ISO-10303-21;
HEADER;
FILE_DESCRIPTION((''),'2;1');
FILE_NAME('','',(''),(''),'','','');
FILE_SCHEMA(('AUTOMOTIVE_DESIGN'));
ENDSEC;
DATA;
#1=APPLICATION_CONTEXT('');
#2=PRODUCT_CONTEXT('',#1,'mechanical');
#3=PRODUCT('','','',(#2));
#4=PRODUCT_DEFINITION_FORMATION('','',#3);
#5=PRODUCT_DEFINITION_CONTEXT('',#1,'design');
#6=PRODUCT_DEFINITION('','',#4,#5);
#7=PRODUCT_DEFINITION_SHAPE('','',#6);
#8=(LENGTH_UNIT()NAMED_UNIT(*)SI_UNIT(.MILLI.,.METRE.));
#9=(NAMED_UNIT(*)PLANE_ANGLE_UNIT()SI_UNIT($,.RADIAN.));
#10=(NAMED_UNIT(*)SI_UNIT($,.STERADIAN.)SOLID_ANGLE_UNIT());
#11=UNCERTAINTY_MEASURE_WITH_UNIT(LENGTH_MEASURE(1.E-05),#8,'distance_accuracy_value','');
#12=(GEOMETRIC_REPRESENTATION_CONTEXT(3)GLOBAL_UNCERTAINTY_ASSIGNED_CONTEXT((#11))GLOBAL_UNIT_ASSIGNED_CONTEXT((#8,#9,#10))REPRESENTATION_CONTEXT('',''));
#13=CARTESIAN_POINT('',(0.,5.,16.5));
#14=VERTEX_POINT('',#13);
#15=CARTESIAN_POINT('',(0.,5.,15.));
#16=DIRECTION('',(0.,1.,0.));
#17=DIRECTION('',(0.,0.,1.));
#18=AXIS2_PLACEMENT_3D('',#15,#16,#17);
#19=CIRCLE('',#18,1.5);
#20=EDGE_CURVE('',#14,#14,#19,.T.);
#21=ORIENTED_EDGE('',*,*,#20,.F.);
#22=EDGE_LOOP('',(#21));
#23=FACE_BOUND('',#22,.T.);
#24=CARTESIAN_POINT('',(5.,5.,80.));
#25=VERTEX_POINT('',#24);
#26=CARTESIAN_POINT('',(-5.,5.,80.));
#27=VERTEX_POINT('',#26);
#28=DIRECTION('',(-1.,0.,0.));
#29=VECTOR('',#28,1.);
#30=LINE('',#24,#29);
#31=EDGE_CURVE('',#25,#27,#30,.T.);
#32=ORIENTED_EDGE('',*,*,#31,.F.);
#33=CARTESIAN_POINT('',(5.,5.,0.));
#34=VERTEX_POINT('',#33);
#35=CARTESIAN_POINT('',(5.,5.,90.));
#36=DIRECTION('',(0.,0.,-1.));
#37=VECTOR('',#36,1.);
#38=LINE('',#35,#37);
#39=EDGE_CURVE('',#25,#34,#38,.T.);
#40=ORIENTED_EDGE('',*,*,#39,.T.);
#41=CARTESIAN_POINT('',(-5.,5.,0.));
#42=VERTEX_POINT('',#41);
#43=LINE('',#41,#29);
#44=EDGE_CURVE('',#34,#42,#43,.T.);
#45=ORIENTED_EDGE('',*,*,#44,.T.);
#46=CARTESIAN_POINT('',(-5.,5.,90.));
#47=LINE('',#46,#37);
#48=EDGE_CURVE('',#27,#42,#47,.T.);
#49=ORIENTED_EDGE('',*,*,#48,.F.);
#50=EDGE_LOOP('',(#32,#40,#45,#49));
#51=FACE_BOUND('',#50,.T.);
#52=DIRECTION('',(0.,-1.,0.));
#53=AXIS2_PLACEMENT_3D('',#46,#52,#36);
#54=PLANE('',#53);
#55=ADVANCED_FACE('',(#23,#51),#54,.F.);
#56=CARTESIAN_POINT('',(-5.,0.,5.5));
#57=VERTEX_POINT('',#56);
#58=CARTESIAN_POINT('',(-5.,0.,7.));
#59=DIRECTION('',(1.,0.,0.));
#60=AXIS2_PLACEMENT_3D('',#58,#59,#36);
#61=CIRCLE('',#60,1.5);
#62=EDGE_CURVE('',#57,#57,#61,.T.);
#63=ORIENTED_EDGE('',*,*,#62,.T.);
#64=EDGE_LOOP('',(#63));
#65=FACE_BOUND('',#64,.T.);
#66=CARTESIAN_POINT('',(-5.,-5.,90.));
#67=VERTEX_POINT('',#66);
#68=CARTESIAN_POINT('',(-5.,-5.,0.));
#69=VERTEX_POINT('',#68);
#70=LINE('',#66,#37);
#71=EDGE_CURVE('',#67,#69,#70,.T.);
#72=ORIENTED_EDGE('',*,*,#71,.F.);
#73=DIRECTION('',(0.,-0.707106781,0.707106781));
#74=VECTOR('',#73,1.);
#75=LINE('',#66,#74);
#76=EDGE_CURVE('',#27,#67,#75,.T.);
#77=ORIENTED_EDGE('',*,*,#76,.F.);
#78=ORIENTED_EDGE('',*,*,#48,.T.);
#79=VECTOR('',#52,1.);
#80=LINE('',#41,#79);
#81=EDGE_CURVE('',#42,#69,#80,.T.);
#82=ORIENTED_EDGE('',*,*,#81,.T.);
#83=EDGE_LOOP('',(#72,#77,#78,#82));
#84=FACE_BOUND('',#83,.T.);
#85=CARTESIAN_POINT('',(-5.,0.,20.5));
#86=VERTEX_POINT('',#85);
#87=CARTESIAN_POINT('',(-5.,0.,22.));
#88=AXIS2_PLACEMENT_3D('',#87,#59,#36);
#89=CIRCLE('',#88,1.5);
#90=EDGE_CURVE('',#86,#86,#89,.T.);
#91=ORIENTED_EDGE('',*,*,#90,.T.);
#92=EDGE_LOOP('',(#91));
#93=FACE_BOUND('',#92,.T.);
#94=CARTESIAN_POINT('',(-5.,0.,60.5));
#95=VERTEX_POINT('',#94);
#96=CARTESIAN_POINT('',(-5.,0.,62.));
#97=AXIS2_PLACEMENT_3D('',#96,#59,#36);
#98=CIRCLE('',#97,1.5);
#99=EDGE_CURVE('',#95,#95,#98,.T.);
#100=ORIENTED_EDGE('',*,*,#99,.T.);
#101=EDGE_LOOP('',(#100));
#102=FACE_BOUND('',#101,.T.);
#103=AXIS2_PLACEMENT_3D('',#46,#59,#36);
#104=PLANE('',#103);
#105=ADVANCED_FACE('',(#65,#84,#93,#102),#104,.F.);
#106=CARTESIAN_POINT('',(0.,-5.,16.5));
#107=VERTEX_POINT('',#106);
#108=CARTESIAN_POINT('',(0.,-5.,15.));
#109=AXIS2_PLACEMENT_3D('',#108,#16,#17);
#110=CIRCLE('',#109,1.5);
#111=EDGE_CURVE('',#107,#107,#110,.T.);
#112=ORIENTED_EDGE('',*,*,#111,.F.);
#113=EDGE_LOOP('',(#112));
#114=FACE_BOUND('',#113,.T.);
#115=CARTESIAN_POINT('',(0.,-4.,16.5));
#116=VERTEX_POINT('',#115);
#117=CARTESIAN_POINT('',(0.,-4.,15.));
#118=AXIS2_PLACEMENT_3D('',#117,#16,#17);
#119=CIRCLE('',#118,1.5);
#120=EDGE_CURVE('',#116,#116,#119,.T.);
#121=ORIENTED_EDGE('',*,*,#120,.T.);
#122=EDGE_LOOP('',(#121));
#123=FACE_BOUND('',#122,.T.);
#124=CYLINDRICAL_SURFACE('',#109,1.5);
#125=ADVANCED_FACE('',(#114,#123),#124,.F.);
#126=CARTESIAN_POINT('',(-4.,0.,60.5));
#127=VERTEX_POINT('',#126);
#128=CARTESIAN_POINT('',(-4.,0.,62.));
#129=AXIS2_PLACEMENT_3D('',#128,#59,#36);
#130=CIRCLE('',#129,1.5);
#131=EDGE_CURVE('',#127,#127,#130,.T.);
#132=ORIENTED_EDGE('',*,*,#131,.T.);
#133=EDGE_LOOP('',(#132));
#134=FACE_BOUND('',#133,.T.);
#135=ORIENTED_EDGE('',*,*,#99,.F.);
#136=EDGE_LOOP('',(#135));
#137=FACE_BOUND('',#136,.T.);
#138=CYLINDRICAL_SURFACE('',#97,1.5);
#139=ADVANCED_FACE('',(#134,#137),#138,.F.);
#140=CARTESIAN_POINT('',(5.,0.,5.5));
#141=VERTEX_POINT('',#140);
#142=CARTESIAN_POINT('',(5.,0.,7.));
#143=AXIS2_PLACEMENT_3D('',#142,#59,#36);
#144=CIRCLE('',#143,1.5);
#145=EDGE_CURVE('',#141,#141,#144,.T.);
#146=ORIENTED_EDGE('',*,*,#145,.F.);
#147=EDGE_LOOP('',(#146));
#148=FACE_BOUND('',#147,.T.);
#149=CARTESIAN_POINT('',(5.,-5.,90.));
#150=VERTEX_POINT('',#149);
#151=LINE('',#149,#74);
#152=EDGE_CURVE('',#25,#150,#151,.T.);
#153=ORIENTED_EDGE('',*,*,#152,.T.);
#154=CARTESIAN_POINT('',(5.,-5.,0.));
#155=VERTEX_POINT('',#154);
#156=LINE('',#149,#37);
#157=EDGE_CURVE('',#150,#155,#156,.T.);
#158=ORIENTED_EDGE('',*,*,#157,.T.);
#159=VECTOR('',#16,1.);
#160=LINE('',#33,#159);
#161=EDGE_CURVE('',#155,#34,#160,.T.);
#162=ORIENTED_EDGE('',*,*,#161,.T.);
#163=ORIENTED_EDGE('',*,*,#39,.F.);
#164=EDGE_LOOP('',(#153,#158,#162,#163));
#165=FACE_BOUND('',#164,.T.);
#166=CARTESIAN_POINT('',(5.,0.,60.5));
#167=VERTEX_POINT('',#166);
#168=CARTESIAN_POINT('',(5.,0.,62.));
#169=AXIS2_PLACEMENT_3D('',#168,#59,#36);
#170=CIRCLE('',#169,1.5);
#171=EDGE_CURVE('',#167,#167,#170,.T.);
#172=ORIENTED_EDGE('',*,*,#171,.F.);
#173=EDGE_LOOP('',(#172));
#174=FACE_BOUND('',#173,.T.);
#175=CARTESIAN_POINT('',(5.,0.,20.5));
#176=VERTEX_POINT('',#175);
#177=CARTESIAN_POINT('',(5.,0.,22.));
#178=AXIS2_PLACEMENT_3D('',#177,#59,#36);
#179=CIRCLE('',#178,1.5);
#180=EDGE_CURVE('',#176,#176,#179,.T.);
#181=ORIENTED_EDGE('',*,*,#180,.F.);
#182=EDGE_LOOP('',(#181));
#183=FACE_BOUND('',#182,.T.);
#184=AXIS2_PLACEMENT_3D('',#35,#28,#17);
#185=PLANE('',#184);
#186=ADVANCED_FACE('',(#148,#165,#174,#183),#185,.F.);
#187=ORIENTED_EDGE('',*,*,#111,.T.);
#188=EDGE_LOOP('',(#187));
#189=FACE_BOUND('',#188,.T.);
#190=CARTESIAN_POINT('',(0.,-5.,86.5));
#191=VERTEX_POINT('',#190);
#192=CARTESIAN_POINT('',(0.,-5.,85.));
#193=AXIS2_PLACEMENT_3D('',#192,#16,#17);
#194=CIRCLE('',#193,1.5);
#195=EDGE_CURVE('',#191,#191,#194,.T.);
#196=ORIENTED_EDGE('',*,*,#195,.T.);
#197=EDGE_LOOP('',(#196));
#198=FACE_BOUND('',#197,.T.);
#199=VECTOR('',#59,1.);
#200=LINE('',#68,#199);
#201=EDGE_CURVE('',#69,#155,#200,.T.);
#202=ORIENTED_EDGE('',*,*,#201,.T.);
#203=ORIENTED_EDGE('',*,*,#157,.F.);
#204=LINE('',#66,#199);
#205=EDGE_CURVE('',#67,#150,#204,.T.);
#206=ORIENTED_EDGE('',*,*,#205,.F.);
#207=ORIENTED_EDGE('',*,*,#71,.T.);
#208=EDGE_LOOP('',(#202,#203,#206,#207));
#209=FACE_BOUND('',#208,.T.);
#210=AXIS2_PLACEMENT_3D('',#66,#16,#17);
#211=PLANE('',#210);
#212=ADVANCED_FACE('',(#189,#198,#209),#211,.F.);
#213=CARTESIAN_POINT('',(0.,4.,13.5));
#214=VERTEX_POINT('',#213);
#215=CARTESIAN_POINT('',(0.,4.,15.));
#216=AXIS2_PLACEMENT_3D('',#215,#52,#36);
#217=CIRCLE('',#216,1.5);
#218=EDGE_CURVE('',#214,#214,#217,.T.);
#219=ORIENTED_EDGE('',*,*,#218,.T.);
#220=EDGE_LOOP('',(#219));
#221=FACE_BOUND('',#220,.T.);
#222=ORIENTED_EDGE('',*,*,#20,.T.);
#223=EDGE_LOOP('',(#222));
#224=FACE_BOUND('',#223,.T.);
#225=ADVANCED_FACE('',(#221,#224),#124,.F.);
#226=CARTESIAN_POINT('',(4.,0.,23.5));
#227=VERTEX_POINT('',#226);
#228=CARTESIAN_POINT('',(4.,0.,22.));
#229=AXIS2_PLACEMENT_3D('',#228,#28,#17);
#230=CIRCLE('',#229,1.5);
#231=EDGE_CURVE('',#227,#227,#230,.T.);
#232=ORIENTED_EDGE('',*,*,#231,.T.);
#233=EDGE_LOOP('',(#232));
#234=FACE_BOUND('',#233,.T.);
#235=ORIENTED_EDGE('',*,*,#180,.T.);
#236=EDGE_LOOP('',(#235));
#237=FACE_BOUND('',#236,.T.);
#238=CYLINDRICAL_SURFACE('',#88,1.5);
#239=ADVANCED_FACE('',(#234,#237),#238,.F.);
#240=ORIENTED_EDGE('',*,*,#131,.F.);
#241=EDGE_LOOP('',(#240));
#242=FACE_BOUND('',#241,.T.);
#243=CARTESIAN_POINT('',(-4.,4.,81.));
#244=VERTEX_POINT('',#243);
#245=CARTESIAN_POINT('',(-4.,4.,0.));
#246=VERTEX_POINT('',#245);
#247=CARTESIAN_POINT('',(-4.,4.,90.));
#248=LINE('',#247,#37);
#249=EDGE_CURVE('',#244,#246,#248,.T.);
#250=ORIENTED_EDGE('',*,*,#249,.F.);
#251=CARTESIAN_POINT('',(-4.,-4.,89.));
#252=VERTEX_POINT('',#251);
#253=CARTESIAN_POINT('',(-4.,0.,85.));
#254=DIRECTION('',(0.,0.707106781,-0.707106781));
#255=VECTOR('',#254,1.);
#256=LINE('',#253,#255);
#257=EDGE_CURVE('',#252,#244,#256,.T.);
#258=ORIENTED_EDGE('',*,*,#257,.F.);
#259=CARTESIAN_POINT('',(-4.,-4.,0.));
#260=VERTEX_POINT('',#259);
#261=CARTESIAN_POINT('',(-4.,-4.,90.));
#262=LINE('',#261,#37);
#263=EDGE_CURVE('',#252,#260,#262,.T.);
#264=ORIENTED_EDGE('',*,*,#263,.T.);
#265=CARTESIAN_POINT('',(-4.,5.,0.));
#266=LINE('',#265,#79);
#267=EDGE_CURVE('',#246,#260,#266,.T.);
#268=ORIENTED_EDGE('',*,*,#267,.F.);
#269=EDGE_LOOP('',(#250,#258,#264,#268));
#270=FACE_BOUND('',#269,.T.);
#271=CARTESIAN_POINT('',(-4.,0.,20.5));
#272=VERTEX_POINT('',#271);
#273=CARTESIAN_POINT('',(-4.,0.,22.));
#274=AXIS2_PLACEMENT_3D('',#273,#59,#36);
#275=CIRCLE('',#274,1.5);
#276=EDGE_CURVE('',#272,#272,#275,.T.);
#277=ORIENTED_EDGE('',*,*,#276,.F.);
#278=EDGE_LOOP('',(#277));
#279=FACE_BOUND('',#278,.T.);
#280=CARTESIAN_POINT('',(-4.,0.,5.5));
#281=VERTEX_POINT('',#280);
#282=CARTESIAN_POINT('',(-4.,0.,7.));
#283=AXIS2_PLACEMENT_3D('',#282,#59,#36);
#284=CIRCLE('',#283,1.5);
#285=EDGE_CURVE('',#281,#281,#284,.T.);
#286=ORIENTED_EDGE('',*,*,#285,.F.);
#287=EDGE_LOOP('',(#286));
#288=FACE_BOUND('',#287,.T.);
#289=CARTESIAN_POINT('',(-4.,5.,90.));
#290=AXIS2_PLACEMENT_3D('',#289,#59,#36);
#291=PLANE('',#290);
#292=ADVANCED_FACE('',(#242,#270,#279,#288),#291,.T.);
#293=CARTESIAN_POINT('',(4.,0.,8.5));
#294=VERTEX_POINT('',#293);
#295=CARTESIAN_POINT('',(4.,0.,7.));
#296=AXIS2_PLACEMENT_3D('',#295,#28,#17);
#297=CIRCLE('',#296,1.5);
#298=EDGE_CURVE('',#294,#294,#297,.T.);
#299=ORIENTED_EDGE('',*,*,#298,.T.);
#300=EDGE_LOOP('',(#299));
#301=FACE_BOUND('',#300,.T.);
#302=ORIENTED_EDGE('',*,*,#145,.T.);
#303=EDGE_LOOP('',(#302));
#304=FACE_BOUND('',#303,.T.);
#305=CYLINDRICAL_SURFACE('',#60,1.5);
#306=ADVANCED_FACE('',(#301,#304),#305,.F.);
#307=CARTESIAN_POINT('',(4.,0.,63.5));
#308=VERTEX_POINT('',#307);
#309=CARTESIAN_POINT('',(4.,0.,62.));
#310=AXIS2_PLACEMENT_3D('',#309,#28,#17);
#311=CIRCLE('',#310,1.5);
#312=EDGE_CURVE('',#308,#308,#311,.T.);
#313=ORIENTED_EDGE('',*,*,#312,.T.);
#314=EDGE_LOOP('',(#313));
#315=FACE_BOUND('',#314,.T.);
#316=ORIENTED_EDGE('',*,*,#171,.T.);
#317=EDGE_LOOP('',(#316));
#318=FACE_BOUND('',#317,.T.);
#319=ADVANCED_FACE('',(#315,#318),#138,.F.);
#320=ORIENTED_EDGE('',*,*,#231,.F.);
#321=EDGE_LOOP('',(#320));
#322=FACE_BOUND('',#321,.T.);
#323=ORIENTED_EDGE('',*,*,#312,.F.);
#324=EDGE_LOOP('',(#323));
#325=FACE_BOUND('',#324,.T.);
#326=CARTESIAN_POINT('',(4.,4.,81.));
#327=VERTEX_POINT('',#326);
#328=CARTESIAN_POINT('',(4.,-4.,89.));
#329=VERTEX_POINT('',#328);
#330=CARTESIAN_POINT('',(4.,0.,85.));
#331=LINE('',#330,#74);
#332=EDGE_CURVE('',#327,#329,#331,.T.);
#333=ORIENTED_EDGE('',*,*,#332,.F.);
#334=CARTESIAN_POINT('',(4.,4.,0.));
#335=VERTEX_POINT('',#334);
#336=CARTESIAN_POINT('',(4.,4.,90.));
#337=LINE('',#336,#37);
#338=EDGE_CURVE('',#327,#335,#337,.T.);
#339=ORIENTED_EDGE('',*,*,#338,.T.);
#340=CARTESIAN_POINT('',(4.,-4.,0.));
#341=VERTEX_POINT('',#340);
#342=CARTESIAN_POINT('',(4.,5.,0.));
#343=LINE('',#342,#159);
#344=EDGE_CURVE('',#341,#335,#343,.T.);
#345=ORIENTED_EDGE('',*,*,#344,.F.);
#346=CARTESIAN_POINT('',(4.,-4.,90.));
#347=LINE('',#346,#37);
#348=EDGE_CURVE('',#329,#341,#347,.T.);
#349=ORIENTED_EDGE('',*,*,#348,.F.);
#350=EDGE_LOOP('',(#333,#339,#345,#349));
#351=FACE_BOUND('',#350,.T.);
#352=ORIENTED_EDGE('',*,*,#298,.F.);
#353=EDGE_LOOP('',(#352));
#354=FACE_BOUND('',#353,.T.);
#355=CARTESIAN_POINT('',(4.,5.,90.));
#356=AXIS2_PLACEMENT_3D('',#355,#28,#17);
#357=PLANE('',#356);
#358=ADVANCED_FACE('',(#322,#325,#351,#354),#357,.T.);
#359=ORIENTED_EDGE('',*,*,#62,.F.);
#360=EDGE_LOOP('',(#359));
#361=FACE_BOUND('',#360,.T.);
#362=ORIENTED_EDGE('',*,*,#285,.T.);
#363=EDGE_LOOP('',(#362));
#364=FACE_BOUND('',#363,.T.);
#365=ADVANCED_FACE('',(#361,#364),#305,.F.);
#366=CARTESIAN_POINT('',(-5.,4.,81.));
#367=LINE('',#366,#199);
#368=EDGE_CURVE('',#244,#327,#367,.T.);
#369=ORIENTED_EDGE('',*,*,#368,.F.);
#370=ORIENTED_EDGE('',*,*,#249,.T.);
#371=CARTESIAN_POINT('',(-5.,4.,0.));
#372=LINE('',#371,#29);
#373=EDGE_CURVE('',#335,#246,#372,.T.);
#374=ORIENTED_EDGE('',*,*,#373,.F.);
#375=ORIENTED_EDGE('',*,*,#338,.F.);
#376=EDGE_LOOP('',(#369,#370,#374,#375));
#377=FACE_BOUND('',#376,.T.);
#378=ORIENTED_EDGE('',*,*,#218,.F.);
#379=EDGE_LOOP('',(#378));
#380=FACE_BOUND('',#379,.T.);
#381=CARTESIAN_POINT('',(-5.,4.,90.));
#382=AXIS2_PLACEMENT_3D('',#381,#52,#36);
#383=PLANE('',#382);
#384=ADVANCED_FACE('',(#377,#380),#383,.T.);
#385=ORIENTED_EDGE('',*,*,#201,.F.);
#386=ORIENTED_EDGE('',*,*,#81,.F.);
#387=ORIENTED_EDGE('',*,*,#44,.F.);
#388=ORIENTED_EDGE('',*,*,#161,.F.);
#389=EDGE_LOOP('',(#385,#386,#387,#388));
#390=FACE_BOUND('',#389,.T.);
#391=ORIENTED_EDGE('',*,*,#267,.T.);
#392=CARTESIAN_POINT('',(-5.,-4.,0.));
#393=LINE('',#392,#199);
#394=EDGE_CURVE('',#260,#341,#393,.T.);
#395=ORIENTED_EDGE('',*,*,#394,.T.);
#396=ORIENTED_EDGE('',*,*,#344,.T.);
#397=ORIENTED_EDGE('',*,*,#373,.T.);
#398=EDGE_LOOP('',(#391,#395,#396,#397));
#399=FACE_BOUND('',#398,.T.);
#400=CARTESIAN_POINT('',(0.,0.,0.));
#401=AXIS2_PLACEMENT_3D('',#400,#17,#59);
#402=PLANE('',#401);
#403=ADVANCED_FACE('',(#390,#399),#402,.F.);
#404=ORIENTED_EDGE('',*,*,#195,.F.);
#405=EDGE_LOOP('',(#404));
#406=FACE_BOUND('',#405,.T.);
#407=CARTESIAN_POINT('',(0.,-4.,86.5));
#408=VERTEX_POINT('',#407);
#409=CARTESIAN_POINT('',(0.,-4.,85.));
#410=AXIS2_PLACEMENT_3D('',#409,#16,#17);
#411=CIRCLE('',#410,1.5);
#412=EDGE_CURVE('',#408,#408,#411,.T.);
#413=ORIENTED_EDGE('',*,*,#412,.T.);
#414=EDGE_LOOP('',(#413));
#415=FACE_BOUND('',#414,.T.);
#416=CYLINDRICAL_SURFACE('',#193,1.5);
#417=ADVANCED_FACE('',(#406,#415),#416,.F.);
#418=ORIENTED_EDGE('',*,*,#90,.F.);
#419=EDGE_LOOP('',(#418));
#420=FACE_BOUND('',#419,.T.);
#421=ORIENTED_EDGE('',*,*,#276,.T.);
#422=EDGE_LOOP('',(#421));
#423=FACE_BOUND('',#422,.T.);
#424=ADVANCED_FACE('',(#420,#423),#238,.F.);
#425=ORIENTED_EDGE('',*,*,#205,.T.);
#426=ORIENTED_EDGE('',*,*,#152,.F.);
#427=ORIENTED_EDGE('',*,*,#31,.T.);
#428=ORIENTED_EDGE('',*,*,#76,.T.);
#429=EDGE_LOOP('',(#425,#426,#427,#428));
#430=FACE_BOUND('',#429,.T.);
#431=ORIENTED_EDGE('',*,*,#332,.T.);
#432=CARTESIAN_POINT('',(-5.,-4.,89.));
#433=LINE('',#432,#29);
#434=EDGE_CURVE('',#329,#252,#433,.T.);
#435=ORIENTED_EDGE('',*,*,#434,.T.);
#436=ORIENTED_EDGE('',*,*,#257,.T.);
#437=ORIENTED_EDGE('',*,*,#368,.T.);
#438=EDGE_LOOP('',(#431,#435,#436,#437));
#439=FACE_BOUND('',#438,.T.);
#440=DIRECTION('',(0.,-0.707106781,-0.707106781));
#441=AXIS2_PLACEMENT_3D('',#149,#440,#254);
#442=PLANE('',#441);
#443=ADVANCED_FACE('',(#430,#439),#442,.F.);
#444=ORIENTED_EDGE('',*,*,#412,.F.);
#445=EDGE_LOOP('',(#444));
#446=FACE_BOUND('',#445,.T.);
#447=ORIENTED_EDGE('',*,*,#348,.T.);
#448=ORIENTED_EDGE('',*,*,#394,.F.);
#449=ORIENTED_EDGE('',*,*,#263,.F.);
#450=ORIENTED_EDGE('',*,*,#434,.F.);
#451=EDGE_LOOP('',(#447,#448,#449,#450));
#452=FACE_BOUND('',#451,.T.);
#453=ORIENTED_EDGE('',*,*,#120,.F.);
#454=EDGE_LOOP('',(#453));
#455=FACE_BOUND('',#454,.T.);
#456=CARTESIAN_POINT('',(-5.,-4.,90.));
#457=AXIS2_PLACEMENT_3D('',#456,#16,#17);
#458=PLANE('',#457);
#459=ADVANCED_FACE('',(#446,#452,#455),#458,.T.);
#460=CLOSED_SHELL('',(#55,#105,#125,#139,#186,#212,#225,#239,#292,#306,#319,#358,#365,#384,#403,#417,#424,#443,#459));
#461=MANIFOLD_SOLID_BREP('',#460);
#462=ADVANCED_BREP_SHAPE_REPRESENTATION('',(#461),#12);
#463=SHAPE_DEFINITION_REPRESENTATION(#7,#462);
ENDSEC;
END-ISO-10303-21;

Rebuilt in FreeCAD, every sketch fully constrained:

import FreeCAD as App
import Part
import Sketcher

V = App.Vector


def add_polygon(sketch, points):
    """Adds a closed chain of lines whose ends are joined by coincident constraints."""
    first, n = sketch.GeometryCount, len(points)
    for a, b in zip(points, points[1:] + points[:1]):
        sketch.addGeometry(Part.LineSegment(App.Vector(*a, 0), App.Vector(*b, 0)), False)
    for i in range(n):
        sketch.addConstraint(Sketcher.Constraint("Coincident", first + i, 2, first + (i + 1) % n, 1))

doc = App.newDocument("Part")
body = doc.addObject("PartDesign::Body", "Body")

# Sketch on XY plane
sketch1 = doc.addObject("Sketcher::SketchObject", "Sketch")
body.addObject(sketch1)
sketch1.AttachmentSupport = (doc.XY_Plane, [""])
sketch1.MapMode = "FlatFace"
add_polygon(sketch1, [(-5, 5), (-5, -5), (5, -5), (5, 5)])  # lines 0-3
add_polygon(sketch1, [(4, -4), (-4, -4), (-4, 4), (4, 4)])  # lines 4-7
sketch1.addConstraint([
    Sketcher.Constraint("Vertical", 0),
    Sketcher.Constraint("Horizontal", 1),
    Sketcher.Constraint("Vertical", 2),
    Sketcher.Constraint("Horizontal", 3),
    Sketcher.Constraint("Horizontal", 4),
    Sketcher.Constraint("Vertical", 5),
    Sketcher.Constraint("Horizontal", 6),
    Sketcher.Constraint("Vertical", 7),
    Sketcher.Constraint("Symmetric", 0, 2, 2, 2, -1, 1),
    Sketcher.Constraint("Symmetric", 4, 2, 6, 2, -1, 1),
    Sketcher.Constraint("Equal", 3, 0),
    Sketcher.Constraint("Equal", 6, 5),
    Sketcher.Constraint("DistanceX", 1, 1, 1, 2, 10.0),
    Sketcher.Constraint("DistanceX", 4, 2, 4, 1, 8.0),
])
pad1 = doc.addObject("PartDesign::Pad", "Pad")
body.addObject(pad1)
pad1.Profile = sketch1
pad1.Length = 90

# Sketch on YZ plane
sketch2 = doc.addObject("Sketcher::SketchObject", "Sketch001")
body.addObject(sketch2)
sketch2.AttachmentSupport = (doc.YZ_Plane, [""])
sketch2.MapMode = "FlatFace"
sketch2.AttachmentOffset = App.Placement(V(0, 0, 5), App.Rotation())
sketch2.addGeometry([
    Part.Circle(V(0, 62, 0), V(0, 0, 1), 1.5),
    Part.Circle(V(0, 7, 0), V(0, 0, 1), 1.5),
    Part.Circle(V(0, 22, 0), V(0, 0, 1), 1.5),
], False)
sketch2.addConstraint([
    Sketcher.Constraint("Equal", 0, 1),
    Sketcher.Constraint("Equal", 1, 2),
    Sketcher.Constraint("PointOnObject", 0, 3, -2),
    Sketcher.Constraint("PointOnObject", 1, 3, -2),
    Sketcher.Constraint("PointOnObject", 2, 3, -2),
    Sketcher.Constraint("Diameter", 0, 3.0),
    Sketcher.Constraint("DistanceY", -1, 1, 0, 3, 62.0),
    Sketcher.Constraint("DistanceY", -1, 1, 1, 3, 7.0),
    Sketcher.Constraint("DistanceY", -1, 1, 2, 3, 22.0),
])
pocket1 = doc.addObject("PartDesign::Pocket", "Pocket")
body.addObject(pocket1)
pocket1.Profile = sketch2
pocket1.Type = "ThroughAll"

# Sketch on XZ plane
sketch3 = doc.addObject("Sketcher::SketchObject", "Sketch002")
body.addObject(sketch3)
sketch3.AttachmentSupport = (doc.XZ_Plane, [""])
sketch3.MapMode = "FlatFace"
sketch3.AttachmentOffset = App.Placement(V(0, 0, -5), App.Rotation())
sketch3.addGeometry([
    Part.Circle(V(0, 15, 0), V(0, 0, 1), 1.5),
    Part.Circle(V(0, 85, 0), V(0, 0, 1), 1.5),
], False)
sketch3.addConstraint([
    Sketcher.Constraint("Equal", 0, 1),
    Sketcher.Constraint("PointOnObject", 0, 3, -2),
    Sketcher.Constraint("PointOnObject", 1, 3, -2),
    Sketcher.Constraint("Diameter", 0, 3.0),
    Sketcher.Constraint("DistanceY", -1, 1, 0, 3, 15.0),
    Sketcher.Constraint("DistanceY", -1, 1, 1, 3, 85.0),
])
pocket2 = doc.addObject("PartDesign::Pocket", "Pocket001")
body.addObject(pocket2)
pocket2.Profile = sketch3
pocket2.Type = "ThroughAll"
pocket2.Reversed = True

# Sketch on YZ plane
sketch4 = doc.addObject("Sketcher::SketchObject", "Sketch003")
body.addObject(sketch4)
sketch4.AttachmentSupport = (doc.YZ_Plane, [""])
sketch4.MapMode = "FlatFace"
sketch4.AttachmentOffset = App.Placement(V(0, 0, -5), App.Rotation())
add_polygon(sketch4, [(5, 80), (-5, 90), (5, 90)])  # lines 0-2
sketch4.addConstraint([
    Sketcher.Constraint("Horizontal", 1),
    Sketcher.Constraint("Vertical", 2),
    Sketcher.Constraint("Equal", 1, 2),
    Sketcher.Constraint("DistanceX", 1, 1, 1, 2, 10.0),
    Sketcher.Constraint("DistanceX", 0, 2, -1, 1, 5.0),
    Sketcher.Constraint("DistanceY", -1, 1, 0, 2, 90.0),
])
pocket3 = doc.addObject("PartDesign::Pocket", "Pocket002")
body.addObject(pocket3)
pocket3.Profile = sketch4
pocket3.Length = 10
pocket3.Reversed = True

doc.recompute()
